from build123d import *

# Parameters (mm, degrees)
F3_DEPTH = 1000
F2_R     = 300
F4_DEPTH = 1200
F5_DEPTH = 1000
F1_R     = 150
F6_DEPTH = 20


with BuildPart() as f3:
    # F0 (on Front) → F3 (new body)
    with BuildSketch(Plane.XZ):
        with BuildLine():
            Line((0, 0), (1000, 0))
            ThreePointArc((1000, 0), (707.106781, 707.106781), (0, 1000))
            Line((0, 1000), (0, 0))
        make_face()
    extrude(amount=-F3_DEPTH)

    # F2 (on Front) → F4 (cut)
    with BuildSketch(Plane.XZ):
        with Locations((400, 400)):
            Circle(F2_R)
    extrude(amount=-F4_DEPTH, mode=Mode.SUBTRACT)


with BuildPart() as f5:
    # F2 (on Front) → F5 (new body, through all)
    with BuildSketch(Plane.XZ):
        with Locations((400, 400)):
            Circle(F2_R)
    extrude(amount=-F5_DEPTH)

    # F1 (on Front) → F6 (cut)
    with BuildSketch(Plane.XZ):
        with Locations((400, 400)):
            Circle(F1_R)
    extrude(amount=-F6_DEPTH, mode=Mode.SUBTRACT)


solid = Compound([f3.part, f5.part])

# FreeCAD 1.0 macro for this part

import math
import FreeCAD as App
import Part
import Sketcher
from FreeCAD import Vector

doc = App.newDocument("Part")
body = doc.addObject("PartDesign::Body", "Body")

sketch1 = doc.addObject("Sketcher::SketchObject", "Sketch")
body.addObject(sketch1)
sketch1.AttachmentSupport = (doc.XZ_Plane, [""])
sketch1.MapMode = "FlatFace"
sketch1.addGeometry([
    Part.LineSegment(Vector(0, 0, 0), Vector(1000, 0, 0)),
    Part.ArcOfCircle(Part.Circle(Vector(0, 0, 0), Vector(0, 0, 1), 1000), math.radians(0), math.radians(90)),
    Part.LineSegment(Vector(0, 1000, 0), Vector(0, 0, 0)),
], False)
sketch1.addConstraint([
    Sketcher.Constraint("Coincident", 0, 2, 1, 1),
    Sketcher.Constraint("Coincident", 1, 2, 2, 1),
    Sketcher.Constraint("Coincident", 2, 2, 0, 1),
    Sketcher.Constraint("Horizontal", 0),
    Sketcher.Constraint("Vertical", 2),
    Sketcher.Constraint("Coincident", 1, 3, -1, 1),
    Sketcher.Constraint("Coincident", 2, 2, -1, 1),
    Sketcher.Constraint("Radius", 1, 1000.000001),
])
pad1 = doc.addObject("PartDesign::Pad", "Pad")
body.addObject(pad1)
pad1.Profile = sketch1
pad1.Length = 1000
pad1.Reversed = True

sketch2 = doc.addObject("Sketcher::SketchObject", "Sketch001")
body.addObject(sketch2)
sketch2.AttachmentSupport = (doc.XZ_Plane, [""])
sketch2.MapMode = "FlatFace"
sketch2.addGeometry(Part.Circle(Vector(400, 400, 0), Vector(0, 0, 1), 300), False)
sketch2.addConstraint([
    Sketcher.Constraint("Diameter", 0, 600.0),
    Sketcher.Constraint("DistanceX", -1, 1, 0, 3, 400.0),
    Sketcher.Constraint("DistanceY", -1, 1, 0, 3, 400.0),
])
pocket1 = doc.addObject("PartDesign::Pocket", "Pocket")
body.addObject(pocket1)
pocket1.Profile = sketch2
pocket1.Length = 1200
body2 = doc.addObject("PartDesign::Body", "Body001")

sketch3 = doc.addObject("Sketcher::SketchObject", "Sketch002")
body2.addObject(sketch3)
sketch3.AttachmentSupport = (doc.getObject("XZ_Plane001"), [""])
sketch3.MapMode = "FlatFace"
sketch3.addGeometry(Part.Circle(Vector(400, 400, 0), Vector(0, 0, 1), 300), False)
sketch3.addConstraint([
    Sketcher.Constraint("Diameter", 0, 600.0),
    Sketcher.Constraint("DistanceX", -1, 1, 0, 3, 400.0),
    Sketcher.Constraint("DistanceY", -1, 1, 0, 3, 400.0),
])
pad2 = doc.addObject("PartDesign::Pad", "Pad001")
body2.addObject(pad2)
pad2.Profile = sketch3
pad2.Length = 1000
pad2.Reversed = True

sketch4 = doc.addObject("Sketcher::SketchObject", "Sketch003")
body2.addObject(sketch4)
sketch4.AttachmentSupport = (doc.getObject("XZ_Plane001"), [""])
sketch4.MapMode = "FlatFace"
sketch4.addGeometry(Part.Circle(Vector(400, 400, 0), Vector(0, 0, 1), 150), False)
sketch4.addConstraint([
    Sketcher.Constraint("Diameter", 0, 300.0),
    Sketcher.Constraint("DistanceX", -1, 1, 0, 3, 400.0),
    Sketcher.Constraint("DistanceY", -1, 1, 0, 3, 400.0),
])
pocket2 = doc.addObject("PartDesign::Pocket", "Pocket001")
body2.addObject(pocket2)
pocket2.Profile = sketch4
pocket2.Length = 20

doc.recompute()
